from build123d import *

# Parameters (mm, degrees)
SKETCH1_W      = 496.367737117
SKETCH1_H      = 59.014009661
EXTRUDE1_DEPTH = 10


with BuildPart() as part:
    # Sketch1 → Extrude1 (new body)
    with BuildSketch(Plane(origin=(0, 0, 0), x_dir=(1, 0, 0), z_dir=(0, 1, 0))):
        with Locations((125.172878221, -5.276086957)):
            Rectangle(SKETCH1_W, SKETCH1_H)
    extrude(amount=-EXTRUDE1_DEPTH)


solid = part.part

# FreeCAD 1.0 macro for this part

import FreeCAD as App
import Part
import Sketcher
from FreeCAD import Vector
Q = App.Units.Quantity


def add_polygon(sketch, points):
    """Adds a closed chain of lines whose ends are joined by coincident constraints."""
    first, n = sketch.GeometryCount, len(points)
    for a, b in zip(points, points[1:] + points[:1]):
        sketch.addGeometry(Part.LineSegment(App.Vector(*a, 0), App.Vector(*b, 0)), False)
    for i in range(n):
        sketch.addConstraint(Sketcher.Constraint("Coincident", first + i, 2, first + (i + 1) % n, 1))

doc = App.newDocument("Part")
body = doc.addObject("PartDesign::Body", "Body")

# Sketch on XZ plane
sketch1 = body.newObject("Sketcher::SketchObject", "Sketch")
sketch1.AttachmentSupport = (doc.getObject("XZ_Plane"), [""])
sketch1.MapMode = "FlatFace"
add_polygon(sketch1, [(-123, -24), (-123, 35), (373, 35), (373, -24)])  # lines 0-3
sketch1.addConstraint(Sketcher.Constraint("Vertical", 0))
sketch1.addConstraint(Sketcher.Constraint("Horizontal", 1))
sketch1.addConstraint(Sketcher.Constraint("Vertical", 2))
sketch1.addConstraint(Sketcher.Constraint("Horizontal", 3))
sketch1.addConstraint(Sketcher.Constraint("DistanceY", 0, 1, 0, 2, Q("59.01401 mm")))
sketch1.addConstraint(Sketcher.Constraint("DistanceX", 1, 1, 1, 2, Q("496.367737 mm")))
sketch1.addConstraint(Sketcher.Constraint("DistanceX", 0, 2, -1, 1, Q("123.01099 mm")))
sketch1.addConstraint(Sketcher.Constraint("DistanceY", -1, 1, 0, 2, Q("34.783092 mm")))
pad1 = body.newObject("PartDesign::Pad", "Pad")
pad1.Profile = sketch1
pad1.Length = 10

doc.recompute()
